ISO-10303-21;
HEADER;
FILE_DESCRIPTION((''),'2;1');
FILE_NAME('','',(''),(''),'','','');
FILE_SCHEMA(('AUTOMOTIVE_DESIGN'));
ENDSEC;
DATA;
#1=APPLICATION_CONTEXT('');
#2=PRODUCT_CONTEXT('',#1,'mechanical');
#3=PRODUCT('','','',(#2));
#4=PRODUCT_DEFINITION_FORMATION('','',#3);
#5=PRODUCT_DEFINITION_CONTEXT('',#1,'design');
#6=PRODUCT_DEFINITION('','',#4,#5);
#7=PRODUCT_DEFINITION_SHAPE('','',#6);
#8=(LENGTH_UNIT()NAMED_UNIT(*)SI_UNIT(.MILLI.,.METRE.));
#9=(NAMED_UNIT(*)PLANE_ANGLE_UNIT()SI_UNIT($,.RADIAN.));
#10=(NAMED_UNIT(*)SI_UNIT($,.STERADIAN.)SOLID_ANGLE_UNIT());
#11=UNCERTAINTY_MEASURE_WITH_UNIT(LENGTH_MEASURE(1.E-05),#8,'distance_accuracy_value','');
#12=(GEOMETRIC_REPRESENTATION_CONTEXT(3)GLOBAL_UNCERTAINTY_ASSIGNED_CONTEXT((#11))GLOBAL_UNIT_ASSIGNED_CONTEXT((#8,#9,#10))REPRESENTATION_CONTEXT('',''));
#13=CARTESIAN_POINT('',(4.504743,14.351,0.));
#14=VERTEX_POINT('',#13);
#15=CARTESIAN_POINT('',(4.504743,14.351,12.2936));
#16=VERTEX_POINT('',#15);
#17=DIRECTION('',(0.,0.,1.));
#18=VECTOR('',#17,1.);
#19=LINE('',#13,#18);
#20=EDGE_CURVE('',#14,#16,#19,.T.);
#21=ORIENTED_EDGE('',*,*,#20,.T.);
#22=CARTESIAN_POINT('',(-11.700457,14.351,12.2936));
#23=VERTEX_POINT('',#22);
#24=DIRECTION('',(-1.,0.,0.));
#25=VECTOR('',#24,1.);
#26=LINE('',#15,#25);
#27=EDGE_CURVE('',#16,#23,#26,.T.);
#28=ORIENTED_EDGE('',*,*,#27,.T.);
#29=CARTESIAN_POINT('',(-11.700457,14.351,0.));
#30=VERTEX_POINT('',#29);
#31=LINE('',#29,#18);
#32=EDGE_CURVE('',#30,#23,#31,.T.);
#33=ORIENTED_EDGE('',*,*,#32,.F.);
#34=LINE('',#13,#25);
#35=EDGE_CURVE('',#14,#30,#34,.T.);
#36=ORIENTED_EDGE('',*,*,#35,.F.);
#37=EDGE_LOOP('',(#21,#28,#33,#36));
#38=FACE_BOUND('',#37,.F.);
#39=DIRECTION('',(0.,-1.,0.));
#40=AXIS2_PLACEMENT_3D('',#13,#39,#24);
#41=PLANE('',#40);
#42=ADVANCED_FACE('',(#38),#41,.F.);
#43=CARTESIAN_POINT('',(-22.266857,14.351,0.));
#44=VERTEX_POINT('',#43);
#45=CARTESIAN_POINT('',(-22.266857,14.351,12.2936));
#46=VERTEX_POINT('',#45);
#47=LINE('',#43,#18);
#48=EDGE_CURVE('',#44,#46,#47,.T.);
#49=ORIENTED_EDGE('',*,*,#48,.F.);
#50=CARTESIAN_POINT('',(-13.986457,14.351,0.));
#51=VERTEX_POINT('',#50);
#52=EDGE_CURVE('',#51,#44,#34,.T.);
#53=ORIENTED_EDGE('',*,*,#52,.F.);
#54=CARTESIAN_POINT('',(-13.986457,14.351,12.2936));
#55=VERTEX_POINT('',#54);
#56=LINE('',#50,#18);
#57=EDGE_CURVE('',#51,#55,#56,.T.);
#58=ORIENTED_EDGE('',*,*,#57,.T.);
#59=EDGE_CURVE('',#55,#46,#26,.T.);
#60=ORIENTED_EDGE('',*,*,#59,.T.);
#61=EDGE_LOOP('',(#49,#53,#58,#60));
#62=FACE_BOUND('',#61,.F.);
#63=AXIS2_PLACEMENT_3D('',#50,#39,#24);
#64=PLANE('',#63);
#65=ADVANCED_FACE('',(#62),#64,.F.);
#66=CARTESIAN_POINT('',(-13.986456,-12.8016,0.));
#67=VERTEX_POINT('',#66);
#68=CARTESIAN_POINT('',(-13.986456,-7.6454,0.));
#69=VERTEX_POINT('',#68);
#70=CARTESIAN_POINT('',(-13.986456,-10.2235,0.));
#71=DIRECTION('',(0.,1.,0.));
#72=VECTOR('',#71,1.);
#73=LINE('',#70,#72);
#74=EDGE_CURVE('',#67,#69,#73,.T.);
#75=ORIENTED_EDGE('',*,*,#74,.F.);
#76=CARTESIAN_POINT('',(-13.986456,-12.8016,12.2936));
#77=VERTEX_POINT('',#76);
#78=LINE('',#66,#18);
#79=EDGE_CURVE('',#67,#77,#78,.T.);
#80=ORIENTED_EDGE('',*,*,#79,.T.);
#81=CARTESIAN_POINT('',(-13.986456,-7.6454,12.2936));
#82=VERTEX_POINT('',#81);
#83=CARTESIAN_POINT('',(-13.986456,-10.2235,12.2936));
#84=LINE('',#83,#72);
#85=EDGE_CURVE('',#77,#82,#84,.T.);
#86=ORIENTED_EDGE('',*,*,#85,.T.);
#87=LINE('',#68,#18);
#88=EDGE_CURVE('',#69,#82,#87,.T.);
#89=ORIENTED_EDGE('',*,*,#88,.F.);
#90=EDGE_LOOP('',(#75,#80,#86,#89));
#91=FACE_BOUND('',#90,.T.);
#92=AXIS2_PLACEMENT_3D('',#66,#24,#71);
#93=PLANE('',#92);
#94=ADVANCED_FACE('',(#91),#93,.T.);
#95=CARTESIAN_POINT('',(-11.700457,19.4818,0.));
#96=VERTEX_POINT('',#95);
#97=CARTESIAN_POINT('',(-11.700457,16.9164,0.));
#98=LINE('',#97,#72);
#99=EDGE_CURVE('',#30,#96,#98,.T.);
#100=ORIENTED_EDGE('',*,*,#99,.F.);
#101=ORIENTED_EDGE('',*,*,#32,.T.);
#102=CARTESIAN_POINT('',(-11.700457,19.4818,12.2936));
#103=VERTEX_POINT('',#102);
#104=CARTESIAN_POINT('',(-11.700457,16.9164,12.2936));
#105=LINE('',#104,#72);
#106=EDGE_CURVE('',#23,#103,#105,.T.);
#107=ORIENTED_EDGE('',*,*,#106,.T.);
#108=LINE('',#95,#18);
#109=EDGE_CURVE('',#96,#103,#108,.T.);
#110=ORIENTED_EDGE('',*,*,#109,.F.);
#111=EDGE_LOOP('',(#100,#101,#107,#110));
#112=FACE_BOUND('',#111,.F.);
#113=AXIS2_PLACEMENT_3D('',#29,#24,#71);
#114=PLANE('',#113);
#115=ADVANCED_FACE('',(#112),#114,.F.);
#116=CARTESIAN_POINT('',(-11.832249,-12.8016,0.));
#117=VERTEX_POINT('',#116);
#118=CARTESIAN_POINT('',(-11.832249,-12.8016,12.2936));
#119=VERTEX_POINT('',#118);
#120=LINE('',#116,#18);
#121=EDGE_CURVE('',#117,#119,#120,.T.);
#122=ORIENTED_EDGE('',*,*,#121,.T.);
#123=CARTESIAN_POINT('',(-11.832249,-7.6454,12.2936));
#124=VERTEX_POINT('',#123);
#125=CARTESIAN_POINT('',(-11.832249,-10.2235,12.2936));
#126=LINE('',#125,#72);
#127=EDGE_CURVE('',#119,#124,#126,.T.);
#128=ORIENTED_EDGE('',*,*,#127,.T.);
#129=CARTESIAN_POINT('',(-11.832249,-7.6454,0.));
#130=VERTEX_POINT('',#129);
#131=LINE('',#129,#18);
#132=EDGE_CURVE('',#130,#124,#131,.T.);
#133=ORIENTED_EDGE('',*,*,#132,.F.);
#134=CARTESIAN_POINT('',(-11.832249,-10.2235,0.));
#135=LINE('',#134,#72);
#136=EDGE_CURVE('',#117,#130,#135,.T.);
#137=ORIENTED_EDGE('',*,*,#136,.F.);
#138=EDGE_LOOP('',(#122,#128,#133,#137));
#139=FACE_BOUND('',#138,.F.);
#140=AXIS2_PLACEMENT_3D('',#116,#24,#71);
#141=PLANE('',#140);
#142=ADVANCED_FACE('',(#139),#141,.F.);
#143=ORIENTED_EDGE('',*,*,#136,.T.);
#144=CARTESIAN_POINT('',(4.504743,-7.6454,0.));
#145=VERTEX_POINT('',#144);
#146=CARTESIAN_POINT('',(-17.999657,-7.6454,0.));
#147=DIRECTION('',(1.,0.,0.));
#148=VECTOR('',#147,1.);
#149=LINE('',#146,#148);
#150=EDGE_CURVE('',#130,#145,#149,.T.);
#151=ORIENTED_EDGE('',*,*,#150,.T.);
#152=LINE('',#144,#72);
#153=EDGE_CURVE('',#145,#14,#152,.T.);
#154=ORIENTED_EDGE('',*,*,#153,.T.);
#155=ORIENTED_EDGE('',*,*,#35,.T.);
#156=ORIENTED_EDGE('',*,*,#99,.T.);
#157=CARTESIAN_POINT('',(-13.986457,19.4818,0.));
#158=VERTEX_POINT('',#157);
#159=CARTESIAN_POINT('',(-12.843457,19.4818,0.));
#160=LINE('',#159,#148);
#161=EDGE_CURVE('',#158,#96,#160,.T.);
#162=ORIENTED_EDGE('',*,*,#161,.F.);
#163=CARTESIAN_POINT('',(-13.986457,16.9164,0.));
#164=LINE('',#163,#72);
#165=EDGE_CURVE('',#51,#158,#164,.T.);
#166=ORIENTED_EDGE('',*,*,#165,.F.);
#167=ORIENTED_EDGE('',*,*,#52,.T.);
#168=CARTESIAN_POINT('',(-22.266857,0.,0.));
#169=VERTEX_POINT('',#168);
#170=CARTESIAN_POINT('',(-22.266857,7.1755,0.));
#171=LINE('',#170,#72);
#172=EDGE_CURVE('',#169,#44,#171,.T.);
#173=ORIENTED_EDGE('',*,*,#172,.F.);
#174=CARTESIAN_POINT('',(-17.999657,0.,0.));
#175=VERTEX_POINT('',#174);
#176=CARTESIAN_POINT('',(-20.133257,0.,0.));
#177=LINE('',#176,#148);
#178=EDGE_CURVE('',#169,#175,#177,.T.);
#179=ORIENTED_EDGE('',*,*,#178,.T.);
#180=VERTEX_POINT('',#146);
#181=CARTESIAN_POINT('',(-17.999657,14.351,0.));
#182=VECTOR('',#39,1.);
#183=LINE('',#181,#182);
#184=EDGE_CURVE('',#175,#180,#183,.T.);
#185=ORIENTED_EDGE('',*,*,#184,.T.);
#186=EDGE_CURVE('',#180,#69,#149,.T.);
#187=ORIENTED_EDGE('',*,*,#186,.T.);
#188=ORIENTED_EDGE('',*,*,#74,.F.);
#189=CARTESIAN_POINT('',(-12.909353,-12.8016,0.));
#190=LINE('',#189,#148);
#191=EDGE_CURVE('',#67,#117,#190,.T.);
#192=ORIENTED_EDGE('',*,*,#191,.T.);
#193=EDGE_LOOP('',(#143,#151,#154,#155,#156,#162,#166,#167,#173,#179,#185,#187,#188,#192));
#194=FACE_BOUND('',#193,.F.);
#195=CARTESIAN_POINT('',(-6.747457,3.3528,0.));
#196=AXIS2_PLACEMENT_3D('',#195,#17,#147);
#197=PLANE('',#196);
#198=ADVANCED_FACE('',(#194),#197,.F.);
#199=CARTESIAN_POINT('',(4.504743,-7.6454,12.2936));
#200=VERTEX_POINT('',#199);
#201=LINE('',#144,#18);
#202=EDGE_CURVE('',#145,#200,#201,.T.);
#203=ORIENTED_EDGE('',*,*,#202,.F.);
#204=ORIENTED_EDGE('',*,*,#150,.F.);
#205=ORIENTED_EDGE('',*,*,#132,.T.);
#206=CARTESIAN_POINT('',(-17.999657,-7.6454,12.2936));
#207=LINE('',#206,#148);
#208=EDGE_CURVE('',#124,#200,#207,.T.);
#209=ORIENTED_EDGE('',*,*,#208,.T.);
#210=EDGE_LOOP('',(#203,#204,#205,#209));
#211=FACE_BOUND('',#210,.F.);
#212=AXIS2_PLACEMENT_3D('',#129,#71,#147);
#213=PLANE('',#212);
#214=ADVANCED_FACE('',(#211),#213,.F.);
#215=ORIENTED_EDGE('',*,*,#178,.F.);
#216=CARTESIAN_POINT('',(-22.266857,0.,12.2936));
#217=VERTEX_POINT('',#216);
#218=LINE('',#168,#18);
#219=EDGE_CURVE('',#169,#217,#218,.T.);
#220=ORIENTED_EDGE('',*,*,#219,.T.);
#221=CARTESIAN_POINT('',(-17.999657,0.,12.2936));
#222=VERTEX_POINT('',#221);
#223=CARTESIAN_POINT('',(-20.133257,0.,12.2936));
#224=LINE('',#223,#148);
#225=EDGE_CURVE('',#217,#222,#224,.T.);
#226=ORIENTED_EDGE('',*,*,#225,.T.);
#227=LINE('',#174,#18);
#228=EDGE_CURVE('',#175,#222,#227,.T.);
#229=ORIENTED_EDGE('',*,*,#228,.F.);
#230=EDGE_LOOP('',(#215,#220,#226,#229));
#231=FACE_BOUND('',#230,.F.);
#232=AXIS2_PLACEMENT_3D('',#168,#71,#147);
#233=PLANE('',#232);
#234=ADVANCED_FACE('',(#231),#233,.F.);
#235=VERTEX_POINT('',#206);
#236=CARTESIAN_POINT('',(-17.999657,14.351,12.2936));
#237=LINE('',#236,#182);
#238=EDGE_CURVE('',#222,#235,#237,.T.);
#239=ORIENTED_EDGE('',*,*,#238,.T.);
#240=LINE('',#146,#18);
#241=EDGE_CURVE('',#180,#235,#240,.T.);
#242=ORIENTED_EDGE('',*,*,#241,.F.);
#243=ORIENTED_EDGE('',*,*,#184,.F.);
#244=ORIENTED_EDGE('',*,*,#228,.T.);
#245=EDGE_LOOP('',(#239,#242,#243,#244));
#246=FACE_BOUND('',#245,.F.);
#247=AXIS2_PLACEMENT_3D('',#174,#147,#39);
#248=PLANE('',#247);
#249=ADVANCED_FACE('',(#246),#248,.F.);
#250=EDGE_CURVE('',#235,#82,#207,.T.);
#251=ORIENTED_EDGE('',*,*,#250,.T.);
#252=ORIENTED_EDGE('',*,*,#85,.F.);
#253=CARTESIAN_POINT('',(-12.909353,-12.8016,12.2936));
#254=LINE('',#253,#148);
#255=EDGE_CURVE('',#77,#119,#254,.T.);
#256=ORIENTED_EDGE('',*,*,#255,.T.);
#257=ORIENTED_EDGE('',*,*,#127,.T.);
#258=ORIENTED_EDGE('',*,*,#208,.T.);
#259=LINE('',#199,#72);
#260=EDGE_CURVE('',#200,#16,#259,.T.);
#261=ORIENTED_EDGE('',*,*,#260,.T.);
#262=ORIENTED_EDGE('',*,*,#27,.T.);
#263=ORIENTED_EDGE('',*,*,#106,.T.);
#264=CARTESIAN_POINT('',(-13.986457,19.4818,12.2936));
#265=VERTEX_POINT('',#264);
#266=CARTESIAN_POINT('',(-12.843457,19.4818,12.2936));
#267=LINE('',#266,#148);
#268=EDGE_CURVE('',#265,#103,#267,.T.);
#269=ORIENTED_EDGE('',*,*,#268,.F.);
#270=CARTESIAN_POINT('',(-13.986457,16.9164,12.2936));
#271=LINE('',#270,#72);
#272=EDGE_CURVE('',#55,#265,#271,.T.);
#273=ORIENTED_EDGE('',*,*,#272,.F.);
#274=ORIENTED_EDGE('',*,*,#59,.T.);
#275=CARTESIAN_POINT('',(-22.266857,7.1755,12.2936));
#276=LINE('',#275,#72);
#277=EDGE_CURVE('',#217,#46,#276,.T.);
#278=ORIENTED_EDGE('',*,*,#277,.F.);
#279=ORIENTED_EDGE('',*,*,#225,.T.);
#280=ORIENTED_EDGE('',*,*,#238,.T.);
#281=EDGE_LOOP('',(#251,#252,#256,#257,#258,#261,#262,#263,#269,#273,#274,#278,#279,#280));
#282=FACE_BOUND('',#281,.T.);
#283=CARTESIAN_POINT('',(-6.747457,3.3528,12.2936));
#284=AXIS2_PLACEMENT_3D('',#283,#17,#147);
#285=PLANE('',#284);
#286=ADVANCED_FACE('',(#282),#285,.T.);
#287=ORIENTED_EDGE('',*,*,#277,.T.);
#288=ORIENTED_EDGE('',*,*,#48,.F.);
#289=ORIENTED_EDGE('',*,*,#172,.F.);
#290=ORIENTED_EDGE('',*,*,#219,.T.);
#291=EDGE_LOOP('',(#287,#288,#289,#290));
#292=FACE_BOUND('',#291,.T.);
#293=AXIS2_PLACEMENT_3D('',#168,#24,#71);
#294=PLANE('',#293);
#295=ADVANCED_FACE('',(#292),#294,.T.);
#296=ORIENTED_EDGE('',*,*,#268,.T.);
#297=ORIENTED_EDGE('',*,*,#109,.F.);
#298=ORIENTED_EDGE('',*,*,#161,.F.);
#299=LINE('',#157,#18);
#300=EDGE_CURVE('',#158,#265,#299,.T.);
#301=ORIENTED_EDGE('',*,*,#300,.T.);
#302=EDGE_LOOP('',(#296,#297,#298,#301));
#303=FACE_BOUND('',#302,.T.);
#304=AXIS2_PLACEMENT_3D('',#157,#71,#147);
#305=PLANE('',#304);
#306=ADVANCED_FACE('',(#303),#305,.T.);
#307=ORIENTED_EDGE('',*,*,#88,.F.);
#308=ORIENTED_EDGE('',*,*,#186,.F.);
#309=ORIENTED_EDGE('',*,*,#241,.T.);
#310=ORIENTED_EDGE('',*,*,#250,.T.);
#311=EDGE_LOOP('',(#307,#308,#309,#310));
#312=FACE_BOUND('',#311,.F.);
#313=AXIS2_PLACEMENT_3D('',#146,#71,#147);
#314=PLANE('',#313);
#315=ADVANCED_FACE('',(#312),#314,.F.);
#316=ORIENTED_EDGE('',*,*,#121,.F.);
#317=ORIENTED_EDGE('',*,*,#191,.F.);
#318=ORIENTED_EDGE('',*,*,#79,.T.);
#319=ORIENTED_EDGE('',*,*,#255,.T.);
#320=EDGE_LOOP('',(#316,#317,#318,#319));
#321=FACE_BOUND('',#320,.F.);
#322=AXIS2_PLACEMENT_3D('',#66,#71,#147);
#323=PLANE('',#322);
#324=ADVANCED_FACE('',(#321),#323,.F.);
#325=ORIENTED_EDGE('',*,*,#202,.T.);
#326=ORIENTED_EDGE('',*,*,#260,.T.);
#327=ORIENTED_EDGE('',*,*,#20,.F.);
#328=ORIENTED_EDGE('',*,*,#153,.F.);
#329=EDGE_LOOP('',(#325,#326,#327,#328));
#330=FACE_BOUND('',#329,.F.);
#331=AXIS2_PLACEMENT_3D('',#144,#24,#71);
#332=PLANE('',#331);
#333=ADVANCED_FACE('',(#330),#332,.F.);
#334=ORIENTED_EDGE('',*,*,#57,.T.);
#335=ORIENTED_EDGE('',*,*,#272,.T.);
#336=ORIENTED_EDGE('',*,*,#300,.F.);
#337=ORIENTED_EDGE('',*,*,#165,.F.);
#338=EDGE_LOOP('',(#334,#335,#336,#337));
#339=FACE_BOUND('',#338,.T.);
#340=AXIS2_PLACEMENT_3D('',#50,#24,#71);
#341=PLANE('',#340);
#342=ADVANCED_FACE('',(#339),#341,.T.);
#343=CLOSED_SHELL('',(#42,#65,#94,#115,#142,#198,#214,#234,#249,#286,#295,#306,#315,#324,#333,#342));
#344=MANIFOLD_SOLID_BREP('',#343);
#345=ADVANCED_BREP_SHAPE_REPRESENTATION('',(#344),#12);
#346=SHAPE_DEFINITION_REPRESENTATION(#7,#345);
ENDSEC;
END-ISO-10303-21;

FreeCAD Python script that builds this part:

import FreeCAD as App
import Part
import Sketcher
Q = App.Units.Quantity


def add_polygon(sketch, points):
    """Adds a closed chain of lines whose ends are joined by coincident constraints."""
    first, n = sketch.GeometryCount, len(points)
    for a, b in zip(points, points[1:] + points[:1]):
        sketch.addGeometry(Part.LineSegment(App.Vector(*a, 0), App.Vector(*b, 0)), False)
    for i in range(n):
        sketch.addConstraint(Sketcher.Constraint("Coincident", first + i, 2, first + (i + 1) % n, 1))

doc = App.newDocument("Part")
params = doc.addObject("Spreadsheet::Sheet", "Params")
for row, (alias, value) in enumerate([
    ("sketch1_width", "0.09 in"),
    ("sketch1_width2", "0.158 in"),
    ("sketch1_width3", "0.638 in"),
    ("sketch1_width4", "0.326 in"),
    ("sketch1_height", "0.301 in"),
    ("pad1_length", "0.484 in"),
], start=1):
    params.set(f"A{row}", alias)
    params.set(f"B{row}", "=" + value)
    params.setAlias(f"B{row}", alias)

body = doc.addObject("PartDesign::Body", "Body")

# Sketch on XY plane
sketch1 = body.newObject("Sketcher::SketchObject", "Sketch")
sketch1.AttachmentSupport = (doc.getObject("XY_Plane"), [""])
sketch1.MapMode = "FlatFace"
add_polygon(sketch1, [(-18, 0), (-18, -7.6), (-14, -7.6), (-14, -12.8), (-11.8, -12.8), (-11.8, -7.6), (4.5, -7.6), (4.5, 14.4), (-11.7, 14.4), (-11.7, 19.5), (-14, 19.5), (-14, 14.4), (-22.3, 14.4), (-22.3, 0)])  # lines 0-13
sketch1.addConstraint(Sketcher.Constraint("Vertical", 0))
sketch1.addConstraint(Sketcher.Constraint("Horizontal", 1))
sketch1.addConstraint(Sketcher.Constraint("Vertical", 2))
sketch1.addConstraint(Sketcher.Constraint("Horizontal", 3))
sketch1.addConstraint(Sketcher.Constraint("Vertical", 4))
sketch1.addConstraint(Sketcher.Constraint("Horizontal", 5))
sketch1.addConstraint(Sketcher.Constraint("Vertical", 6))
sketch1.addConstraint(Sketcher.Constraint("Horizontal", 7))
sketch1.addConstraint(Sketcher.Constraint("Vertical", 8))
sketch1.addConstraint(Sketcher.Constraint("Horizontal", 9))
sketch1.addConstraint(Sketcher.Constraint("Vertical", 10))
sketch1.addConstraint(Sketcher.Constraint("Horizontal", 11))
sketch1.addConstraint(Sketcher.Constraint("Vertical", 12))
sketch1.addConstraint(Sketcher.Constraint("Horizontal", 13))
sketch1.addConstraint(Sketcher.Constraint("PointOnObject", 12, 2, -1))
sketch1.addConstraint(Sketcher.Constraint("Horizontal", 1, 2, 4, 2))
sketch1.addConstraint(Sketcher.Constraint("Horizontal", 7, 2, 10, 2))
sketch1.addConstraint(Sketcher.Constraint("Vertical", 2, 2, 9, 2))
sketch1.addConstraint(Sketcher.Constraint("DistanceX", 9, 2, 9, 1, Q("0.09 in")))
sketch1.addConstraint(Sketcher.Constraint("DistanceX", 1, 1, 1, 2, Q("0.158 in")))
sketch1.addConstraint(Sketcher.Constraint("DistanceX", 7, 2, 7, 1, Q("0.638 in")))
sketch1.addConstraint(Sketcher.Constraint("DistanceX", 11, 2, 11, 1, Q("0.326 in")))
sketch1.addConstraint(Sketcher.Constraint("DistanceY", 0, 2, 0, 1, Q("0.301 in")))
sketch1.addConstraint(Sketcher.Constraint("DistanceY", 2, 2, 2, 1, Q("0.203 in")))
sketch1.addConstraint(Sketcher.Constraint("DistanceY", 6, 1, 6, 2, Q("0.866 in")))
sketch1.addConstraint(Sketcher.Constraint("DistanceY", 8, 1, 8, 2, Q("0.202 in")))
sketch1.addConstraint(Sketcher.Constraint("DistanceX", 3, 1, 3, 2, 2.154207))
sketch1.addConstraint(Sketcher.Constraint("DistanceX", 3, 2, -1, 1, 11.832249))
sketch1.setExpression("Constraints[32]", "Params.sketch1_width")
sketch1.setExpression("Constraints[33]", "Params.sketch1_width2")
sketch1.setExpression("Constraints[34]", "Params.sketch1_width3")
sketch1.setExpression("Constraints[35]", "Params.sketch1_width4")
sketch1.setExpression("Constraints[36]", "Params.sketch1_height")
pad1 = body.newObject("PartDesign::Pad", "Pad")
pad1.Profile = sketch1
pad1.setExpression("Length", "Params.pad1_length")

doc.recompute()
